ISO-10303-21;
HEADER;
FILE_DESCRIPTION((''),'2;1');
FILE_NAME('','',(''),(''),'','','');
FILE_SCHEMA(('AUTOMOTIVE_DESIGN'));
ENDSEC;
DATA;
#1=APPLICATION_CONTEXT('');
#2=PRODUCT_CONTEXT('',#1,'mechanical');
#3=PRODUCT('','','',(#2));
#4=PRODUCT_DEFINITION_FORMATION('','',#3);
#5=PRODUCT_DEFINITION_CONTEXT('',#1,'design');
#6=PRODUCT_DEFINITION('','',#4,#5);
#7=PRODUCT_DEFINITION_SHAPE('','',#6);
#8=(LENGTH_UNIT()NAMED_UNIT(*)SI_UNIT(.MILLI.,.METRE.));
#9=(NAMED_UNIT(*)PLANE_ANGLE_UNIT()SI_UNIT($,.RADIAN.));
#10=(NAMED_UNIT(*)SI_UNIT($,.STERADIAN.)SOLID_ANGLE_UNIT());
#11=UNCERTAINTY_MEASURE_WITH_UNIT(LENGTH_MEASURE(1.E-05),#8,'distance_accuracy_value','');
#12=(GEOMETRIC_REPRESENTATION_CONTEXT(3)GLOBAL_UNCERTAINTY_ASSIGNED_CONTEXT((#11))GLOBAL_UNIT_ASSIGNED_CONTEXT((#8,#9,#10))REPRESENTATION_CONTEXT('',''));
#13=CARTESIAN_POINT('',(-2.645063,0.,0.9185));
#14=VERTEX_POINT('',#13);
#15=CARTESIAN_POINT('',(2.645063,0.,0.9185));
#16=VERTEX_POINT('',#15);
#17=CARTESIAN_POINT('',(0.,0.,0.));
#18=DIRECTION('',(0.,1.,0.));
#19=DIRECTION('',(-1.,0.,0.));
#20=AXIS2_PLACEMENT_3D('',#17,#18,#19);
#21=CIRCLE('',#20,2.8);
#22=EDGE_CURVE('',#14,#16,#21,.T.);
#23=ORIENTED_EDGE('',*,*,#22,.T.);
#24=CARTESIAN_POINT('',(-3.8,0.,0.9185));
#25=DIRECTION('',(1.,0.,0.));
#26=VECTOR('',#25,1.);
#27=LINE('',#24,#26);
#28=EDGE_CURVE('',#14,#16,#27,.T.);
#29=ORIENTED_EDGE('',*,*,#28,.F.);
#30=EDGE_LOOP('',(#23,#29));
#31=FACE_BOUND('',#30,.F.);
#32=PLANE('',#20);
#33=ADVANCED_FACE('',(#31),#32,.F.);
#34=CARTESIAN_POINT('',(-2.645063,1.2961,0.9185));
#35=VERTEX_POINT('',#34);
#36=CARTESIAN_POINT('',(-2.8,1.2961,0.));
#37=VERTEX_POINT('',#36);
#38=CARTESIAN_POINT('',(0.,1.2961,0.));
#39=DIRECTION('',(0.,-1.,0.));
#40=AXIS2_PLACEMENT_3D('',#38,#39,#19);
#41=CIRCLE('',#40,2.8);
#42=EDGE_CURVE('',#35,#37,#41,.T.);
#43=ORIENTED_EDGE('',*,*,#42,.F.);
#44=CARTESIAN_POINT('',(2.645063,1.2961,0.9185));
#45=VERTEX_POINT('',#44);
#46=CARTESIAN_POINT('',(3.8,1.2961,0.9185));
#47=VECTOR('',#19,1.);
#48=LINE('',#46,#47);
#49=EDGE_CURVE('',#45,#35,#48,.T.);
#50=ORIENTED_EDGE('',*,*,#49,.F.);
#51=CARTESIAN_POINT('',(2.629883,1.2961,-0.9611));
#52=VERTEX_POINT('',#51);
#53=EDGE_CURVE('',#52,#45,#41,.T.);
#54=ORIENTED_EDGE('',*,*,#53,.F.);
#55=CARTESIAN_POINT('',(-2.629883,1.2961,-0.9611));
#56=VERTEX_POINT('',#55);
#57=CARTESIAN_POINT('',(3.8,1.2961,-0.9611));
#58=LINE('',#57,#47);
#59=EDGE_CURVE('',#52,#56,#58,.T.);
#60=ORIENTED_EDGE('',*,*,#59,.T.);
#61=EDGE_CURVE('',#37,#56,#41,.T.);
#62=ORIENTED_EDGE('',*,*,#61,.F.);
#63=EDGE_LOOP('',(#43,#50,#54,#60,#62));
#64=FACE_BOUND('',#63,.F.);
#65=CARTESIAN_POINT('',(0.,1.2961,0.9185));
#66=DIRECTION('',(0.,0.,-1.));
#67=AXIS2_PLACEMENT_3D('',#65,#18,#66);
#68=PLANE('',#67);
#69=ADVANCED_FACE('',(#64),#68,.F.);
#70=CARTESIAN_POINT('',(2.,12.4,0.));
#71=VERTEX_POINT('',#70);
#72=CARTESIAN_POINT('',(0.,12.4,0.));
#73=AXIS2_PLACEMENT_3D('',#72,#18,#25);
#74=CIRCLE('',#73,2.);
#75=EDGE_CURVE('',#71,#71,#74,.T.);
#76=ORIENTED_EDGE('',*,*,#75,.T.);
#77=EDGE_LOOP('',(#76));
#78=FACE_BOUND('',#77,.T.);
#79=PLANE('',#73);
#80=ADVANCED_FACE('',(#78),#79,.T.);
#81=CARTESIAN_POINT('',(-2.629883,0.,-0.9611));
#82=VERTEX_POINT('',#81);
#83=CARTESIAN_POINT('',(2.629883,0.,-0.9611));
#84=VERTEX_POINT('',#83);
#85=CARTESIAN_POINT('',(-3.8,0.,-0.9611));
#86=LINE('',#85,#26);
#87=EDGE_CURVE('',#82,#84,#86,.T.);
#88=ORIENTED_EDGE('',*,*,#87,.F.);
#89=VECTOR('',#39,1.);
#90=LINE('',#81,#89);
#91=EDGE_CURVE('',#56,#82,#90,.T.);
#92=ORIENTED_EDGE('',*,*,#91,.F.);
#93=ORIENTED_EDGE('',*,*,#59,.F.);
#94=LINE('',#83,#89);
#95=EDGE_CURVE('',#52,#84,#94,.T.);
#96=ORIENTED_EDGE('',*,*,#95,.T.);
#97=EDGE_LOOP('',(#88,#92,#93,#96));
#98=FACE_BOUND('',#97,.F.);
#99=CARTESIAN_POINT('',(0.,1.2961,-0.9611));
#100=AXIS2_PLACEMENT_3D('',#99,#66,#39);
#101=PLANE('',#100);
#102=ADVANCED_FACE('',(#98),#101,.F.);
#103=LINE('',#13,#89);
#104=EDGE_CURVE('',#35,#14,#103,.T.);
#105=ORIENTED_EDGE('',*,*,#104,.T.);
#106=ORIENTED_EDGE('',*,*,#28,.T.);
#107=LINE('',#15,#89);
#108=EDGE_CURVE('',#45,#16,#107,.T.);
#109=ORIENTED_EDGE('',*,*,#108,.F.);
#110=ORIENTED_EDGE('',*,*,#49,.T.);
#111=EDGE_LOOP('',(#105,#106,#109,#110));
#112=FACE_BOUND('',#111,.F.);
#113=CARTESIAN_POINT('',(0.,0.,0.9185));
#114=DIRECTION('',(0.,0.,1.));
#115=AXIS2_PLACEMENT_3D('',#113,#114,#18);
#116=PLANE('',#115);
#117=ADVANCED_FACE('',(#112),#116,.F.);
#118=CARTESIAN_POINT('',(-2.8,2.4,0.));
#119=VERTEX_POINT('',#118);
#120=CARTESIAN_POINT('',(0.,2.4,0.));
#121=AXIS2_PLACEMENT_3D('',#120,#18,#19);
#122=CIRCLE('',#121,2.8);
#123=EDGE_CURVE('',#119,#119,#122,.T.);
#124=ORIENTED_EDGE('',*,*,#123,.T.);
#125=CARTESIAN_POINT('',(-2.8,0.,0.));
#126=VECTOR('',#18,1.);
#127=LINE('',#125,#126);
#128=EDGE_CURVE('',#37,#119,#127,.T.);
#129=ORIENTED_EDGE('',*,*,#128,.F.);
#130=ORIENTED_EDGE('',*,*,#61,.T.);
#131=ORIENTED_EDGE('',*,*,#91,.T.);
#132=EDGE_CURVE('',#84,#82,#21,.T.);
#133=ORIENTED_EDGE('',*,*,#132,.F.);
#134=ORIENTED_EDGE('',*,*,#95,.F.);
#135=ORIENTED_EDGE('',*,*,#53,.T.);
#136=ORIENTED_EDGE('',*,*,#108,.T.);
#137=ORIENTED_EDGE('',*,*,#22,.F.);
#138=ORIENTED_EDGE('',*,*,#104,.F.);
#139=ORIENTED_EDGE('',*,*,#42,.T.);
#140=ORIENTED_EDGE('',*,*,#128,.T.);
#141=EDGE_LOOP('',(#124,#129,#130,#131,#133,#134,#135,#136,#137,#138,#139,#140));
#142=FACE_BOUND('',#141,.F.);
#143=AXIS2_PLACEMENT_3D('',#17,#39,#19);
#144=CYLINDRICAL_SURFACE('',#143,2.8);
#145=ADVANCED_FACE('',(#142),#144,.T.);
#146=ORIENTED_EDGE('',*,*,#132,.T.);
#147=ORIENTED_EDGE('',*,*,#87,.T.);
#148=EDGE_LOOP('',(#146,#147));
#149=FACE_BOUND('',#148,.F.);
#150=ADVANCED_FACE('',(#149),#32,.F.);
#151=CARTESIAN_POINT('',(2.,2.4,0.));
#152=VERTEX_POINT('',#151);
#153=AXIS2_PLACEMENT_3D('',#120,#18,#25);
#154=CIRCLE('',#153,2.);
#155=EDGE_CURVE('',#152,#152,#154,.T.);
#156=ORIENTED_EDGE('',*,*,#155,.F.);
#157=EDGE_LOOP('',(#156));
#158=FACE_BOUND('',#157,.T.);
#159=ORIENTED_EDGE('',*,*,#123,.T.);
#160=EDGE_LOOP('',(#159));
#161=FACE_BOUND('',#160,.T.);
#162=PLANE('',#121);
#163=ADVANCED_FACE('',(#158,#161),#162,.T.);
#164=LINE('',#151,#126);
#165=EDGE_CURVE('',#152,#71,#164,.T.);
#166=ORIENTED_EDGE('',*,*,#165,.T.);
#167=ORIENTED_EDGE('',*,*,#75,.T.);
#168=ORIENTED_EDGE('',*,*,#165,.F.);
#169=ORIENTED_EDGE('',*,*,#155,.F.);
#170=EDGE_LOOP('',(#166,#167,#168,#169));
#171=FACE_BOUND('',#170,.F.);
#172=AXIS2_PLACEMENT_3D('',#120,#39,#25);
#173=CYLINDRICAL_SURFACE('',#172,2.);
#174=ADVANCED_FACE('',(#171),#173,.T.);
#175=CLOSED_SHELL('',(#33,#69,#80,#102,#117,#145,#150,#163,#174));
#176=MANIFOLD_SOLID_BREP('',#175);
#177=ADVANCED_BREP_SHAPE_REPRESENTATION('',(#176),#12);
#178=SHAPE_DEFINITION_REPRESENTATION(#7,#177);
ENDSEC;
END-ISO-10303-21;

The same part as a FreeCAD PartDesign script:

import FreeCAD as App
import Part
import Sketcher
Q = App.Units.Quantity


def add_polygon(sketch, points):
    """Adds a closed chain of lines whose ends are joined by coincident constraints."""
    first, n = sketch.GeometryCount, len(points)
    for a, b in zip(points, points[1:] + points[:1]):
        sketch.addGeometry(Part.LineSegment(App.Vector(*a, 0), App.Vector(*b, 0)), False)
    for i in range(n):
        sketch.addConstraint(Sketcher.Constraint("Coincident", first + i, 2, first + (i + 1) % n, 1))

doc = App.newDocument("Part")
body = doc.addObject("PartDesign::Body", "Body")

# Sketch on XZ plane
sketch1 = doc.addObject("Sketcher::SketchObject", "Sketch")
body.addObject(sketch1)
sketch1.AttachmentSupport = (doc.XZ_Plane, [""])
sketch1.MapMode = "FlatFace"
sketch1.addGeometry(Part.Circle(App.Vector(0, 0, 0), App.Vector(0, 0, 1), 2.8), False)
sketch1.addConstraint(Sketcher.Constraint("Coincident", 0, 3, -1, 1))
sketch1.addConstraint(Sketcher.Constraint("Diameter", 0, Q("5.6 mm")))
pad1 = doc.addObject("PartDesign::Pad", "Pad")
body.addObject(pad1)
pad1.Profile = sketch1
pad1.Length = 2.4
pad1.Reversed = True

# Sketch on YZ plane
sketch2 = doc.addObject("Sketcher::SketchObject", "Sketch001")
body.addObject(sketch2)
sketch2.AttachmentSupport = (doc.YZ_Plane, [""])
sketch2.MapMode = "FlatFace"
add_polygon(sketch2, [(1.2961, 0.9185), (0, 0.9185), (0, -0.9611), (1.2961, -0.9611)])  # lines 0-3
sketch2.addConstraint(Sketcher.Constraint("Horizontal", 0))
sketch2.addConstraint(Sketcher.Constraint("Vertical", 1))
sketch2.addConstraint(Sketcher.Constraint("Horizontal", 2))
sketch2.addConstraint(Sketcher.Constraint("Vertical", 3))
sketch2.addConstraint(Sketcher.Constraint("PointOnObject", 0, 2, -2))
sketch2.addConstraint(Sketcher.Constraint("DistanceX", 0, 2, 0, 1, Q("1.296 mm")))
sketch2.addConstraint(Sketcher.Constraint("DistanceY", 1, 2, 1, 1, Q("1.8796 mm")))
sketch2.addConstraint(Sketcher.Constraint("DistanceY", 1, 2, -1, 1, Q("0.961 mm")))
pocket1 = doc.addObject("PartDesign::Pocket", "Pocket")
body.addObject(pocket1)
pocket1.Profile = sketch2
pocket1.Type = "ThroughAll"
pocket1.Midplane = True

# Sketch on XZ plane
sketch3 = doc.addObject("Sketcher::SketchObject", "Sketch002")
body.addObject(sketch3)
sketch3.AttachmentSupport = (doc.XZ_Plane, [""])
sketch3.MapMode = "FlatFace"
sketch3.AttachmentOffset = App.Placement(App.Vector(0, 0, -2.4), App.Rotation())
sketch3.addGeometry(Part.Circle(App.Vector(0, 0, 0), App.Vector(0, 0, 1), 2), False)
sketch3.addConstraint(Sketcher.Constraint("Coincident", 0, 3, -1, 1))
sketch3.addConstraint(Sketcher.Constraint("Diameter", 0, Q("4 mm")))
pad2 = doc.addObject("PartDesign::Pad", "Pad001")
body.addObject(pad2)
pad2.Profile = sketch3
pad2.Length = 10
pad2.Reversed = True

doc.recompute()
